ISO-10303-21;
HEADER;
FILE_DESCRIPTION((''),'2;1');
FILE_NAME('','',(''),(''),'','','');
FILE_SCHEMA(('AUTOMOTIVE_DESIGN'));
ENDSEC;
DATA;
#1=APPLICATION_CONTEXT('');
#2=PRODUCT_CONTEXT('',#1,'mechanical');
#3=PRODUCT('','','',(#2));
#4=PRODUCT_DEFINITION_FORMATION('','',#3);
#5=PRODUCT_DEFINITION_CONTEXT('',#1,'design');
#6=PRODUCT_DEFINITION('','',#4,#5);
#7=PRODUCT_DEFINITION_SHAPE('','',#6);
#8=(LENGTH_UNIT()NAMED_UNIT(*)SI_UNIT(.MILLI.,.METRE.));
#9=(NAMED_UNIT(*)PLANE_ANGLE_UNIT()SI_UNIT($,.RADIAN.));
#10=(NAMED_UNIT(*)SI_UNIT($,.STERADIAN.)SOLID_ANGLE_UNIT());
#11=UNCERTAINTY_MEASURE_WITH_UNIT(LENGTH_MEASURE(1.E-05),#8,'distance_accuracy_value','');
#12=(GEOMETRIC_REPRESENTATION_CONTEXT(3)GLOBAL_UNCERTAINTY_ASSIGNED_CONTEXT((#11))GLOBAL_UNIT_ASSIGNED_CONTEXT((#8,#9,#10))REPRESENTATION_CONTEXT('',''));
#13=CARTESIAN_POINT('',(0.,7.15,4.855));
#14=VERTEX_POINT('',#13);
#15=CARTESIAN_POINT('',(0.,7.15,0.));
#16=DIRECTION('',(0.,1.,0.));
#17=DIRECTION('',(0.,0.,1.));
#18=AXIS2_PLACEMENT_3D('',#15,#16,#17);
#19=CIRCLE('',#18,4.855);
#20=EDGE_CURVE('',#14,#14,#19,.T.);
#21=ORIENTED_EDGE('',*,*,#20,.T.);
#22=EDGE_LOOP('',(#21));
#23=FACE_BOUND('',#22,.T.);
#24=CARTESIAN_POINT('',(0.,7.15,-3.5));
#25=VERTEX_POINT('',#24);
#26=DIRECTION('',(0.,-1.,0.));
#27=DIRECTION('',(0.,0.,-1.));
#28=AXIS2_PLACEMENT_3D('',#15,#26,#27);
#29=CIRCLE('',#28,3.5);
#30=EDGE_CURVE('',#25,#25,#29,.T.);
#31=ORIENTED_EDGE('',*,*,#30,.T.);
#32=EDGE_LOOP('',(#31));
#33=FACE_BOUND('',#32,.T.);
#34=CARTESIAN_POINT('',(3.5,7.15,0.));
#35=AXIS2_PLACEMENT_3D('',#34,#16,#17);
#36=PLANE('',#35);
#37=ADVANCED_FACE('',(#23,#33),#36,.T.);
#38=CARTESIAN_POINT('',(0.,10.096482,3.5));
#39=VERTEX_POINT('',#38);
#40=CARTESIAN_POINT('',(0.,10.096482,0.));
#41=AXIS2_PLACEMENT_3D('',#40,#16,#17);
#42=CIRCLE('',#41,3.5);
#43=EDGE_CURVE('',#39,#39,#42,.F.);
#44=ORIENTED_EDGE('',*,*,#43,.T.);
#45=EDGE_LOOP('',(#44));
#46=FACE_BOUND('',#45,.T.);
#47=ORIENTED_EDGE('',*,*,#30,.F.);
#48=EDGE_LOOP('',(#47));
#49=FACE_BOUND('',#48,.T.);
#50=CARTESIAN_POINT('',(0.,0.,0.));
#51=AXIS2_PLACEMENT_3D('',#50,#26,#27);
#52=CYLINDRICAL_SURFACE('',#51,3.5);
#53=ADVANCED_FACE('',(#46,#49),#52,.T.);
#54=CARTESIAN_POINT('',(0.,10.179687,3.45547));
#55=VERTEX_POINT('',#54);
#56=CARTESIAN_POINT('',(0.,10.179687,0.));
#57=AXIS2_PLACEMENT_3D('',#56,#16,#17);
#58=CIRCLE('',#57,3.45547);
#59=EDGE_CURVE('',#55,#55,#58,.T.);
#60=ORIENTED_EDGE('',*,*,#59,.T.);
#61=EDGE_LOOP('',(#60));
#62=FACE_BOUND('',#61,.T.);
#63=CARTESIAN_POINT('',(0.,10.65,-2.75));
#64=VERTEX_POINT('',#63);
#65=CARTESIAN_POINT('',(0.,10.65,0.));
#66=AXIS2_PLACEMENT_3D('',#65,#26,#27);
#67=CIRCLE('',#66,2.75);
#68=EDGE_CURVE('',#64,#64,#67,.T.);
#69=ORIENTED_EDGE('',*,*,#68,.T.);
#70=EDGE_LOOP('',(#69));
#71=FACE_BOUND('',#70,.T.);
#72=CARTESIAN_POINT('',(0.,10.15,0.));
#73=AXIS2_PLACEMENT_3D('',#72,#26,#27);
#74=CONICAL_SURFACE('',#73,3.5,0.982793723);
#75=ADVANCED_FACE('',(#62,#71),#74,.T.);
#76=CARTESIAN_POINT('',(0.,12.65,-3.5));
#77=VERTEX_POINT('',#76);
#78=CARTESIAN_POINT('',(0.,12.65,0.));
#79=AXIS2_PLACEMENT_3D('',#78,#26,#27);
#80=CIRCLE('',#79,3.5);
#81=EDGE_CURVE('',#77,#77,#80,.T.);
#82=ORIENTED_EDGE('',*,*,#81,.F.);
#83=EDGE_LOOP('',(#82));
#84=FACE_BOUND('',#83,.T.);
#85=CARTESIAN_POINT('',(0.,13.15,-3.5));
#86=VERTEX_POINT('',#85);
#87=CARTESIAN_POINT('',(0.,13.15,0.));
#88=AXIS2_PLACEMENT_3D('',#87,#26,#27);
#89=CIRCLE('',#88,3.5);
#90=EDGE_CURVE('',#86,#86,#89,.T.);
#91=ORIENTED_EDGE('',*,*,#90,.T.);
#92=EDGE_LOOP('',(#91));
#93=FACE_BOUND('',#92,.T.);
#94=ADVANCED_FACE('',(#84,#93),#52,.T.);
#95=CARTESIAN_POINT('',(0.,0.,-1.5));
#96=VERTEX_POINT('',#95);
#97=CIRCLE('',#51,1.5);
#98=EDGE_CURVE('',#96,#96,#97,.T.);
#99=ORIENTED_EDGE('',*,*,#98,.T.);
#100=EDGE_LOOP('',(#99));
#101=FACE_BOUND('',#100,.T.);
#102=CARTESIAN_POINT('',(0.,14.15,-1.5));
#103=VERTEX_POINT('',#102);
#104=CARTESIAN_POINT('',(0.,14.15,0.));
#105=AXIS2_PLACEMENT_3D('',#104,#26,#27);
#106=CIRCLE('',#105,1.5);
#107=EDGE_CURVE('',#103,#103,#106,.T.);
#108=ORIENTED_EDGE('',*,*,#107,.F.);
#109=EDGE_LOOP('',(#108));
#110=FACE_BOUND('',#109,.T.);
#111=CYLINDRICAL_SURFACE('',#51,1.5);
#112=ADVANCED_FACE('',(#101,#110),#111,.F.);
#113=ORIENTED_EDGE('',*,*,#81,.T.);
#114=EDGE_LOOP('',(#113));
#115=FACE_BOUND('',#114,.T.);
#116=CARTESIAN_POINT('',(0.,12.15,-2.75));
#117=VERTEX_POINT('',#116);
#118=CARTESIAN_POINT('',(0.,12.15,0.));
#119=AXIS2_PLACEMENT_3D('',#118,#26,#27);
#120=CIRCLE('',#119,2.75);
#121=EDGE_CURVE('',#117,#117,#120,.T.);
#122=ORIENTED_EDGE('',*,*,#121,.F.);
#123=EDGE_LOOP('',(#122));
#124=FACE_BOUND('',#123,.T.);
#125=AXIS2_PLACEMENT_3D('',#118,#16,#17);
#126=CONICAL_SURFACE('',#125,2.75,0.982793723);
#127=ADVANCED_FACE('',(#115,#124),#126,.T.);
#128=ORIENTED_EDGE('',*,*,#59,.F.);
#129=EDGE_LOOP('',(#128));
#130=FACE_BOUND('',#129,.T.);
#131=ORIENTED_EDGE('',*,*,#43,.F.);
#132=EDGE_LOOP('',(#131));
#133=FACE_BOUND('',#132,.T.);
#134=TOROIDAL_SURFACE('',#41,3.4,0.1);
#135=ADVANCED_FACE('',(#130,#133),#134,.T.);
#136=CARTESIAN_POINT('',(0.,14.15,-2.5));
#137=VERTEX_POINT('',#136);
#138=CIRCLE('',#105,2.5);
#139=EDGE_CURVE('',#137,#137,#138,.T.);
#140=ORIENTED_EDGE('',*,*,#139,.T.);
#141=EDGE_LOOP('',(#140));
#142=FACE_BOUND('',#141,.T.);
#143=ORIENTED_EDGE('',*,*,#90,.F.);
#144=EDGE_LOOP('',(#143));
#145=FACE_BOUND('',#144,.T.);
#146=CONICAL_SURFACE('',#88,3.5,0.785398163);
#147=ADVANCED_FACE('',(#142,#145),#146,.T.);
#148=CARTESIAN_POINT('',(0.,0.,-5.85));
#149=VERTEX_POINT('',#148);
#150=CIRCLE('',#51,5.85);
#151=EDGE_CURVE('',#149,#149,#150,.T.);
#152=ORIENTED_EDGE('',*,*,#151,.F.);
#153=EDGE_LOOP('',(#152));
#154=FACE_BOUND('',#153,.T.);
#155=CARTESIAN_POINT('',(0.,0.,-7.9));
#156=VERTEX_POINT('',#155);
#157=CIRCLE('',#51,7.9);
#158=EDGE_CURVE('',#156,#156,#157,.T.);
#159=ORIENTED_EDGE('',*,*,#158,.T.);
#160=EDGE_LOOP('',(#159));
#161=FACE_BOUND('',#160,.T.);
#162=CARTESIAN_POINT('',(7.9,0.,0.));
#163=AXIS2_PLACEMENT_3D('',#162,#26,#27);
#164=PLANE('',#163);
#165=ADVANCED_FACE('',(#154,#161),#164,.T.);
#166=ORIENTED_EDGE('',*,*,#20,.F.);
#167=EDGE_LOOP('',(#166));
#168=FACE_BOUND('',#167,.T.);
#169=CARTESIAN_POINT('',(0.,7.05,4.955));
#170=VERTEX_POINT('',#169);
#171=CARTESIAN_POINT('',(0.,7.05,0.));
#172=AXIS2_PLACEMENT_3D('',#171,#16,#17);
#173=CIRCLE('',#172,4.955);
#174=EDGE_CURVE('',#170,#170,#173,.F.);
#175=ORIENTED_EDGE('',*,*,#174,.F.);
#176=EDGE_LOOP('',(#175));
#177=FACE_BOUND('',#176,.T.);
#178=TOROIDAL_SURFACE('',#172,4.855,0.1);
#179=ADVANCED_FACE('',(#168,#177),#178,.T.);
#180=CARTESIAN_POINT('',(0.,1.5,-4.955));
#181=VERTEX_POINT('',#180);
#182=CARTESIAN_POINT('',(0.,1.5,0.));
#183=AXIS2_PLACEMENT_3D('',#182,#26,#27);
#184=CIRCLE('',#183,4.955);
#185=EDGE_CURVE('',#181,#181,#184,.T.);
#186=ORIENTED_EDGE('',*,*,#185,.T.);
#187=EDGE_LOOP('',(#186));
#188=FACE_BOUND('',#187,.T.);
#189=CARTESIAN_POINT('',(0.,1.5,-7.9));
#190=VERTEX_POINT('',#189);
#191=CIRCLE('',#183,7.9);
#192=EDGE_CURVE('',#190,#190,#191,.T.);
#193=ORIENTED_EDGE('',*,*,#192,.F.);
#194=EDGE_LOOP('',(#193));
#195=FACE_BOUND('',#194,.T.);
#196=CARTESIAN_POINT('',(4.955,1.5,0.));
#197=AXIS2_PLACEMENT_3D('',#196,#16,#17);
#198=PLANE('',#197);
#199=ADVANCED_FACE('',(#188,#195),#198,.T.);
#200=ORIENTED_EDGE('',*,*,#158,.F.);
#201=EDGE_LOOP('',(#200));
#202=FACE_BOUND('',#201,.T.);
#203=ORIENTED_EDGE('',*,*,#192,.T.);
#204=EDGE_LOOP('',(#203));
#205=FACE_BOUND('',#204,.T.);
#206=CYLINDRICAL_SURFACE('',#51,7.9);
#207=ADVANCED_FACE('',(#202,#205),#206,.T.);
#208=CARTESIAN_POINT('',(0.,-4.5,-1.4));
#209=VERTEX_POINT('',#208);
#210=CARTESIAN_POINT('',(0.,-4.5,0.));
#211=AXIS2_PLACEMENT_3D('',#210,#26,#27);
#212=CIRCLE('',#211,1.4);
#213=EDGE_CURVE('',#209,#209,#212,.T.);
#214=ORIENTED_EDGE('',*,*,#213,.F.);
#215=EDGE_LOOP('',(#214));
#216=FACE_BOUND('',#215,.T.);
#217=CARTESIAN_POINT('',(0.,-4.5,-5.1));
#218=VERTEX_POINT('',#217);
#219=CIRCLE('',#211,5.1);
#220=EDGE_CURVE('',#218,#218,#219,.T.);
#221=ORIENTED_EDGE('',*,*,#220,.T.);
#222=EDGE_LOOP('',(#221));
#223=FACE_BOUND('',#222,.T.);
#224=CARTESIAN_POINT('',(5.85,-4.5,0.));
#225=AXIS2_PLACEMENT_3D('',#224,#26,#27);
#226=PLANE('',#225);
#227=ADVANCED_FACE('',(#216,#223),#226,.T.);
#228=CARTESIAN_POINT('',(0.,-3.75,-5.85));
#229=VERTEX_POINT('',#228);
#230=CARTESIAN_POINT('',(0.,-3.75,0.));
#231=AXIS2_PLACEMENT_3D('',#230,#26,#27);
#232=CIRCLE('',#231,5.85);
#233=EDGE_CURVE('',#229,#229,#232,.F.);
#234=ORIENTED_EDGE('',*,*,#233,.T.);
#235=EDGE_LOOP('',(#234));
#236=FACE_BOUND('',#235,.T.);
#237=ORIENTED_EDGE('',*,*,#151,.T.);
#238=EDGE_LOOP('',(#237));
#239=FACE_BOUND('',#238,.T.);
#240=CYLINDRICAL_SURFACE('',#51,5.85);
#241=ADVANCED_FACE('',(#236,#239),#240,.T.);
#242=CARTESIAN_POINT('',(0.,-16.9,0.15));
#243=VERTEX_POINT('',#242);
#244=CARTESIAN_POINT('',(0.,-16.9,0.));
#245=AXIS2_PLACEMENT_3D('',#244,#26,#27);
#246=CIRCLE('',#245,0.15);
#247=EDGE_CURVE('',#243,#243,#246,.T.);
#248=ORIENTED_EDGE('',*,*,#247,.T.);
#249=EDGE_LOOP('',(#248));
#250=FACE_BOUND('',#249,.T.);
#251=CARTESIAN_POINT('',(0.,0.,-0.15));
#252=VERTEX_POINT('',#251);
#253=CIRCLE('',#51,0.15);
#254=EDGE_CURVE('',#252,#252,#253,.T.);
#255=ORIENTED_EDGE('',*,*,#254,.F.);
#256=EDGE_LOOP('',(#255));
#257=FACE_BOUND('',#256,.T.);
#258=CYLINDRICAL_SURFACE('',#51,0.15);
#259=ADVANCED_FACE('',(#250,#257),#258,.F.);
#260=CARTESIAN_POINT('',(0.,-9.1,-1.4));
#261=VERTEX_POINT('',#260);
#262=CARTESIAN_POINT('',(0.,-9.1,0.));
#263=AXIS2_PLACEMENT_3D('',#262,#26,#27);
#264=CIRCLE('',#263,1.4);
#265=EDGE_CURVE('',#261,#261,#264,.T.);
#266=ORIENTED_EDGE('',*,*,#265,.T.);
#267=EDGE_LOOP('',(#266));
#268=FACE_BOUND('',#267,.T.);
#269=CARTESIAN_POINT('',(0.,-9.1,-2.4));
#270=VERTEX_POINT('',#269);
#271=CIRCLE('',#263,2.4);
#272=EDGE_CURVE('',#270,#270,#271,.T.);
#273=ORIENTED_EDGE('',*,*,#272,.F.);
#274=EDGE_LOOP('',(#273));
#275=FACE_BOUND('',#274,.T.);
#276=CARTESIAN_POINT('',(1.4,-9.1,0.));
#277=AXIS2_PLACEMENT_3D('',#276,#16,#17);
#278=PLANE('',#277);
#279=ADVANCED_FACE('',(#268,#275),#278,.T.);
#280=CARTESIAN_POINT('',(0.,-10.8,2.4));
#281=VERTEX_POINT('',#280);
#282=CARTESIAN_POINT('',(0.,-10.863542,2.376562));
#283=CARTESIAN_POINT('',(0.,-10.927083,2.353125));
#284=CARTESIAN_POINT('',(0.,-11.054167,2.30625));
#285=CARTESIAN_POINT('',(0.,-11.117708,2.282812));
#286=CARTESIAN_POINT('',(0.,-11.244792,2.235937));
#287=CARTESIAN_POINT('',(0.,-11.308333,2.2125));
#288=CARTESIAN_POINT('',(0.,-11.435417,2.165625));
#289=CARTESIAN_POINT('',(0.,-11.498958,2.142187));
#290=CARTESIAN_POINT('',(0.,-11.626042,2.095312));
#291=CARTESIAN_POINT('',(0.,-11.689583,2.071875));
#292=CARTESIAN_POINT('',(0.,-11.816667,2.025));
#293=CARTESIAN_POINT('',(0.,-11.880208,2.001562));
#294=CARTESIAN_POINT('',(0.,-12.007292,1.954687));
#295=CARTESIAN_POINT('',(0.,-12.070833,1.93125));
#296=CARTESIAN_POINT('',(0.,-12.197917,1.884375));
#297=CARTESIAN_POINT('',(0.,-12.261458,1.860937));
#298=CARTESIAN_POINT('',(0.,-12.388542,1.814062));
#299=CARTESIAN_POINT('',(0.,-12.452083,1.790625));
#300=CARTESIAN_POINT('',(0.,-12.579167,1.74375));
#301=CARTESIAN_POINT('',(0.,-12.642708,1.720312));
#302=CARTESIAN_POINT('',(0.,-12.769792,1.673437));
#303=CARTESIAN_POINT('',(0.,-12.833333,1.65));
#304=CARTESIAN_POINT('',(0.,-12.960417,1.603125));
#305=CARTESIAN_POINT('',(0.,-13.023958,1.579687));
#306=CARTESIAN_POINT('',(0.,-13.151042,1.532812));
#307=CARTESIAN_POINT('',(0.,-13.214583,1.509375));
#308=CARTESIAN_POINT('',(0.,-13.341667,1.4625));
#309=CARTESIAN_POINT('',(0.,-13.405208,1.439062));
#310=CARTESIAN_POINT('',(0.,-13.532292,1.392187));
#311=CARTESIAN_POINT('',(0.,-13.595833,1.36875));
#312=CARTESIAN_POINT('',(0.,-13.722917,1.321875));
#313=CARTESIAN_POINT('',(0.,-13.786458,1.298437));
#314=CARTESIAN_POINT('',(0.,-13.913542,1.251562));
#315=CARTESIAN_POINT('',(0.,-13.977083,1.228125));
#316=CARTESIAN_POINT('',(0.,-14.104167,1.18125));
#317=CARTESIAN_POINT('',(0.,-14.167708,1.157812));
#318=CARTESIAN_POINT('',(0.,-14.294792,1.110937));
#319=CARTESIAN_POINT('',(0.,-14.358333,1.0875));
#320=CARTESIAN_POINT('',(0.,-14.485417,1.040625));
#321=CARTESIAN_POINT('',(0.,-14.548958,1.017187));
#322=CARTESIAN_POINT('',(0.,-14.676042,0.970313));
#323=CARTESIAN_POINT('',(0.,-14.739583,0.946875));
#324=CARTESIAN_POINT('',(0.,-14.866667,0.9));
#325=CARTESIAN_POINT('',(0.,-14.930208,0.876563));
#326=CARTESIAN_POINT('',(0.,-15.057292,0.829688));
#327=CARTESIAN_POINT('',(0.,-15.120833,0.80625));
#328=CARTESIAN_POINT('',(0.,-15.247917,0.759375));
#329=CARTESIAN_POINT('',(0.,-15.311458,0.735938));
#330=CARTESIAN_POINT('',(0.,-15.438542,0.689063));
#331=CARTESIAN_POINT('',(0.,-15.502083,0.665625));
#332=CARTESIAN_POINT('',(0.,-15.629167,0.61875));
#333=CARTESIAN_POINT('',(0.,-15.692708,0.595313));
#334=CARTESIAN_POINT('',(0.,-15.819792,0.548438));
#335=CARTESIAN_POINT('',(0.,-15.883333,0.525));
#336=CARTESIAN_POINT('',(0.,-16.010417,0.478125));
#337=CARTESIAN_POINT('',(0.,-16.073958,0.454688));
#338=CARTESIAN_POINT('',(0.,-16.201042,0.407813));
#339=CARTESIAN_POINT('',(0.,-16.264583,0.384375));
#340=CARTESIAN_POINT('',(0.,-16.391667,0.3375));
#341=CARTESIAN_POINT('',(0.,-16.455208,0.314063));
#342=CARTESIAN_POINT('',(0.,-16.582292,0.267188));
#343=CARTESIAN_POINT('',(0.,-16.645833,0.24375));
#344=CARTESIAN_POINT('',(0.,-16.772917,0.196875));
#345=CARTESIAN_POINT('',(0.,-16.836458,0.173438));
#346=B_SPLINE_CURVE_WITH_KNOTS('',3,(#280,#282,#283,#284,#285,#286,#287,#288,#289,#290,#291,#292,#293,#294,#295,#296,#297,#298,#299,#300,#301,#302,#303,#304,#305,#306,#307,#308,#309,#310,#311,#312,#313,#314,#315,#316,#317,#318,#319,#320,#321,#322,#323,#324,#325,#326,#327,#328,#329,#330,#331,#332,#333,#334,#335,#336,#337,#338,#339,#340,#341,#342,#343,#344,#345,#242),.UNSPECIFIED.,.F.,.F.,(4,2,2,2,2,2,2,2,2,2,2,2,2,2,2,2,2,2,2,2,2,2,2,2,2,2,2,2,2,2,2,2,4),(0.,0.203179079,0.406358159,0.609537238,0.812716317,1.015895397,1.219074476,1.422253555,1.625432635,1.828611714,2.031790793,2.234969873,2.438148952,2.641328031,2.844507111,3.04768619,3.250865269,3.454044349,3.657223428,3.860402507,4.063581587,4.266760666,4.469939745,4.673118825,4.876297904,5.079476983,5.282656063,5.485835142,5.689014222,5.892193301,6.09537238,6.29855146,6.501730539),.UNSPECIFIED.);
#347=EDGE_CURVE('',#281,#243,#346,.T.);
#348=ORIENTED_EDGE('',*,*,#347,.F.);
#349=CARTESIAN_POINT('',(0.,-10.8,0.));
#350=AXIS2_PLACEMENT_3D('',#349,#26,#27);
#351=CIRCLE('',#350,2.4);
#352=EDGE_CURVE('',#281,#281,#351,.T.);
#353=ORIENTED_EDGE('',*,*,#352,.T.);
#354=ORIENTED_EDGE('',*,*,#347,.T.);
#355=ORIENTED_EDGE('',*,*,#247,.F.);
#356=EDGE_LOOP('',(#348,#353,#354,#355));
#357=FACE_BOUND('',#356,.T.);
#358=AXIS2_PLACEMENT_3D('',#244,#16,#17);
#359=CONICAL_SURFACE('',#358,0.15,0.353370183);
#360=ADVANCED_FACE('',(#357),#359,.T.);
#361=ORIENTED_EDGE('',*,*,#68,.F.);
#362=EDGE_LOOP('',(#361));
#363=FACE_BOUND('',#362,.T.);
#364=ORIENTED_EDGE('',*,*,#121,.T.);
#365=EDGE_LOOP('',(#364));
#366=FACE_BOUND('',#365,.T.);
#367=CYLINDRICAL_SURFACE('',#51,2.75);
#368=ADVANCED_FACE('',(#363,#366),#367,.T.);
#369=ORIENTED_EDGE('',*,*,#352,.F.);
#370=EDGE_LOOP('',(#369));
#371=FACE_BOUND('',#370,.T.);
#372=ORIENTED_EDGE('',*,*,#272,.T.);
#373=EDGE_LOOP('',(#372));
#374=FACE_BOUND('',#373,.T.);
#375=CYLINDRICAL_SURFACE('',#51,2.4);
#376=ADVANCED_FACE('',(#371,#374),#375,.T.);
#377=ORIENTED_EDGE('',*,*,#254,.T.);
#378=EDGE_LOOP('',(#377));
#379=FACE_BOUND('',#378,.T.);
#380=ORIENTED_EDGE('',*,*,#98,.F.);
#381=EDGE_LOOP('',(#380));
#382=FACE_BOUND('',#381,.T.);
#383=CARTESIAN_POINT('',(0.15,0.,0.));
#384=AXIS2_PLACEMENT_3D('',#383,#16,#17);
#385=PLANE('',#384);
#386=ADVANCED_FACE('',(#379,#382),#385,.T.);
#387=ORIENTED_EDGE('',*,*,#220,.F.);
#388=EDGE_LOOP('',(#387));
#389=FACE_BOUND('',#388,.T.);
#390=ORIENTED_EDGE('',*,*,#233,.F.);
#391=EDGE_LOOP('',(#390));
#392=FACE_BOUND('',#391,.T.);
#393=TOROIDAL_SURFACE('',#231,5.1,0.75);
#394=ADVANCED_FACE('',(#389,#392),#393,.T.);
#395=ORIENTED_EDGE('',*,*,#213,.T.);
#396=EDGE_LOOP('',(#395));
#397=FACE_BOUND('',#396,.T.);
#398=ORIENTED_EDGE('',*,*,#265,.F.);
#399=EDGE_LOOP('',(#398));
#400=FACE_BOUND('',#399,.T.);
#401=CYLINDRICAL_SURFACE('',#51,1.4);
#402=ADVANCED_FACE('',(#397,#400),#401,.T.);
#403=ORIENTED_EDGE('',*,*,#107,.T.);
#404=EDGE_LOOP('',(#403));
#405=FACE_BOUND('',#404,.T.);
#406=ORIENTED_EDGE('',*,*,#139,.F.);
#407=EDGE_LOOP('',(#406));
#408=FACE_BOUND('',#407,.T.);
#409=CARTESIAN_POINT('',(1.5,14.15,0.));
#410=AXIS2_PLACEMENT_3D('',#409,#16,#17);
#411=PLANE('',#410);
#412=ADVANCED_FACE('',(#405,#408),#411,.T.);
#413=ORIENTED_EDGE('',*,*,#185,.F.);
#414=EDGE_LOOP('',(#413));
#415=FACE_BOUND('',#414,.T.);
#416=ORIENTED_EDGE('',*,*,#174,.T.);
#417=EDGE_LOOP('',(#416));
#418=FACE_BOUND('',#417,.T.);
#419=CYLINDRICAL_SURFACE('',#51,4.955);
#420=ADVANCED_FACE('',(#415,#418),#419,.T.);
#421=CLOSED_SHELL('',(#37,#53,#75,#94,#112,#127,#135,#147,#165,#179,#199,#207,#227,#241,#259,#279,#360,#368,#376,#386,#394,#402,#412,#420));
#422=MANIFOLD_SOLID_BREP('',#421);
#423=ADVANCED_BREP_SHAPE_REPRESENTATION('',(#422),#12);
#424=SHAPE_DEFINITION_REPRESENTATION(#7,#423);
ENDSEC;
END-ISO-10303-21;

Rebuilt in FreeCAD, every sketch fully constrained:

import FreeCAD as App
import Part
import Sketcher
Q = App.Units.Quantity


def edges_at(feature, points):
    """Names of the edges that pass closest to the given points."""
    edges = feature.Shape.Edges
    near = lambda p: min(range(len(edges)), key=lambda i: edges[i].distToShape(Part.Vertex(*p))[0])
    return sorted({f"Edge{near(p) + 1}" for p in points})


def add_polygon(sketch, points):
    """Adds a closed chain of lines whose ends are joined by coincident constraints."""
    first, n = sketch.GeometryCount, len(points)
    for a, b in zip(points, points[1:] + points[:1]):
        sketch.addGeometry(Part.LineSegment(App.Vector(*a, 0), App.Vector(*b, 0)), False)
    for i in range(n):
        sketch.addConstraint(Sketcher.Constraint("Coincident", first + i, 2, first + (i + 1) % n, 1))

doc = App.newDocument("Part")
body = doc.addObject("PartDesign::Body", "Body")

sketch1 = body.newObject("Sketcher::SketchObject", "Sketch")
sketch1.AttachmentSupport = (doc.getObject("XY_Plane"), [""])
sketch1.MapMode = "FlatFace"
add_polygon(sketch1, [(2.5, 14.2), (1.5, 14.2), (1.5, 0), (0.1, 0), (0.1, -16.9), (2.4, -10.8), (2.4, -9.1), (1.4, -9.1), (1.4, -4.5), (5.8, -4.5), (5.8, 0), (7.9, 0), (7.9, 1.5), (5, 1.5), (5, 7.2), (3.5, 7.2), (3.5, 10.2), (2.8, 10.7), (2.8, 12.2), (3.5, 12.7), (3.5, 13.2)])
sketch1.addConstraint([
    Sketcher.Constraint("Horizontal", 0),
    Sketcher.Constraint("Vertical", 1),
    Sketcher.Constraint("Horizontal", 2),
    Sketcher.Constraint("Vertical", 3),
    Sketcher.Constraint("Vertical", 5),
    Sketcher.Constraint("Horizontal", 6),
    Sketcher.Constraint("Vertical", 7),
    Sketcher.Constraint("Horizontal", 8),
    Sketcher.Constraint("Vertical", 9),
    Sketcher.Constraint("Horizontal", 10),
    Sketcher.Constraint("Vertical", 11),
    Sketcher.Constraint("Horizontal", 12),
    Sketcher.Constraint("Vertical", 13),
    Sketcher.Constraint("Horizontal", 14),
    Sketcher.Constraint("Vertical", 15),
    Sketcher.Constraint("Vertical", 17),
    Sketcher.Constraint("Vertical", 19),
    Sketcher.Constraint("PointOnObject", 1, 2, -1),
    Sketcher.Constraint("PointOnObject", 9, 2, -1),
    Sketcher.Constraint("Vertical", 15, 2, 18, 2),
    Sketcher.Constraint("Equal", 0, 6),
    Sketcher.Constraint("Equal", 11, 17),
    Sketcher.Constraint("Equal", 16, 18),
    Sketcher.Constraint("DistanceX", 0, 2, 0, 1, Q("1 mm")),
    Sketcher.Constraint("DistanceY", 15, 1, 15, 2, Q("3 mm")),
    Sketcher.Constraint("Angle", 20, Q("135 deg")),
    Sketcher.Constraint("DistanceY", 3, 2, 3, 1, Q("16.9 mm")),
    Sketcher.Constraint("DistanceY", 5, 1, 5, 2, Q("1.7 mm")),
    Sketcher.Constraint("DistanceY", 7, 1, 7, 2, Q("4.6 mm")),
    Sketcher.Constraint("DistanceY", 9, 1, 9, 2, Q("4.5 mm")),
    Sketcher.Constraint("DistanceY", 11, 1, 11, 2, Q("1.5 mm")),
    Sketcher.Constraint("DistanceY", 19, 1, 19, 2, Q("0.5 mm")),
    Sketcher.Constraint("DistanceY", 13, 2, 0, 2, Q("7 mm")),
    Sketcher.Constraint("DistanceX", 0, 2, 14, 2, Q("2 mm")),
    Sketcher.Constraint("DistanceX", 2, 2, 2, 1, Q("1.35 mm")),
    Sketcher.Constraint("DistanceX", 8, 1, 8, 2, Q("4.45 mm")),
    Sketcher.Constraint("DistanceX", 10, 1, 10, 2, Q("2.05 mm")),
    Sketcher.Constraint("DistanceY", 1, 2, 1, 1, Q("14.15 mm")),
    Sketcher.Constraint("DistanceX", -1, 1, 0, 2, Q("1.5 mm")),
    Sketcher.Constraint("DistanceX", -1, 1, 4, 2, Q("2.4 mm")),
    Sketcher.Constraint("DistanceX", 12, 2, 12, 1, Q("2.945 mm")),
    Sketcher.Constraint("DistanceX", -1, 1, 16, 2, Q("2.75 mm")),
])
revolution = body.newObject("PartDesign::Revolution", "Revolution")
revolution.Profile = sketch1
revolution.ReferenceAxis = (sketch1, ["V_Axis"])
revolution.Angle = 360
doc.recompute()

fillet = body.newObject("PartDesign::Fillet", "Fillet")
fillet.Base = (revolution, edges_at(revolution, [(0, -4.5, 5.85)]))
fillet.Radius = 0.75
doc.recompute()

fillet2 = body.newObject("PartDesign::Fillet", "Fillet001")
fillet2.Base = (fillet, edges_at(fillet, [(0, 7.15, 4.955), (0, 10.15, 3.5)]))
fillet2.Radius = 0.1

doc.recompute()
